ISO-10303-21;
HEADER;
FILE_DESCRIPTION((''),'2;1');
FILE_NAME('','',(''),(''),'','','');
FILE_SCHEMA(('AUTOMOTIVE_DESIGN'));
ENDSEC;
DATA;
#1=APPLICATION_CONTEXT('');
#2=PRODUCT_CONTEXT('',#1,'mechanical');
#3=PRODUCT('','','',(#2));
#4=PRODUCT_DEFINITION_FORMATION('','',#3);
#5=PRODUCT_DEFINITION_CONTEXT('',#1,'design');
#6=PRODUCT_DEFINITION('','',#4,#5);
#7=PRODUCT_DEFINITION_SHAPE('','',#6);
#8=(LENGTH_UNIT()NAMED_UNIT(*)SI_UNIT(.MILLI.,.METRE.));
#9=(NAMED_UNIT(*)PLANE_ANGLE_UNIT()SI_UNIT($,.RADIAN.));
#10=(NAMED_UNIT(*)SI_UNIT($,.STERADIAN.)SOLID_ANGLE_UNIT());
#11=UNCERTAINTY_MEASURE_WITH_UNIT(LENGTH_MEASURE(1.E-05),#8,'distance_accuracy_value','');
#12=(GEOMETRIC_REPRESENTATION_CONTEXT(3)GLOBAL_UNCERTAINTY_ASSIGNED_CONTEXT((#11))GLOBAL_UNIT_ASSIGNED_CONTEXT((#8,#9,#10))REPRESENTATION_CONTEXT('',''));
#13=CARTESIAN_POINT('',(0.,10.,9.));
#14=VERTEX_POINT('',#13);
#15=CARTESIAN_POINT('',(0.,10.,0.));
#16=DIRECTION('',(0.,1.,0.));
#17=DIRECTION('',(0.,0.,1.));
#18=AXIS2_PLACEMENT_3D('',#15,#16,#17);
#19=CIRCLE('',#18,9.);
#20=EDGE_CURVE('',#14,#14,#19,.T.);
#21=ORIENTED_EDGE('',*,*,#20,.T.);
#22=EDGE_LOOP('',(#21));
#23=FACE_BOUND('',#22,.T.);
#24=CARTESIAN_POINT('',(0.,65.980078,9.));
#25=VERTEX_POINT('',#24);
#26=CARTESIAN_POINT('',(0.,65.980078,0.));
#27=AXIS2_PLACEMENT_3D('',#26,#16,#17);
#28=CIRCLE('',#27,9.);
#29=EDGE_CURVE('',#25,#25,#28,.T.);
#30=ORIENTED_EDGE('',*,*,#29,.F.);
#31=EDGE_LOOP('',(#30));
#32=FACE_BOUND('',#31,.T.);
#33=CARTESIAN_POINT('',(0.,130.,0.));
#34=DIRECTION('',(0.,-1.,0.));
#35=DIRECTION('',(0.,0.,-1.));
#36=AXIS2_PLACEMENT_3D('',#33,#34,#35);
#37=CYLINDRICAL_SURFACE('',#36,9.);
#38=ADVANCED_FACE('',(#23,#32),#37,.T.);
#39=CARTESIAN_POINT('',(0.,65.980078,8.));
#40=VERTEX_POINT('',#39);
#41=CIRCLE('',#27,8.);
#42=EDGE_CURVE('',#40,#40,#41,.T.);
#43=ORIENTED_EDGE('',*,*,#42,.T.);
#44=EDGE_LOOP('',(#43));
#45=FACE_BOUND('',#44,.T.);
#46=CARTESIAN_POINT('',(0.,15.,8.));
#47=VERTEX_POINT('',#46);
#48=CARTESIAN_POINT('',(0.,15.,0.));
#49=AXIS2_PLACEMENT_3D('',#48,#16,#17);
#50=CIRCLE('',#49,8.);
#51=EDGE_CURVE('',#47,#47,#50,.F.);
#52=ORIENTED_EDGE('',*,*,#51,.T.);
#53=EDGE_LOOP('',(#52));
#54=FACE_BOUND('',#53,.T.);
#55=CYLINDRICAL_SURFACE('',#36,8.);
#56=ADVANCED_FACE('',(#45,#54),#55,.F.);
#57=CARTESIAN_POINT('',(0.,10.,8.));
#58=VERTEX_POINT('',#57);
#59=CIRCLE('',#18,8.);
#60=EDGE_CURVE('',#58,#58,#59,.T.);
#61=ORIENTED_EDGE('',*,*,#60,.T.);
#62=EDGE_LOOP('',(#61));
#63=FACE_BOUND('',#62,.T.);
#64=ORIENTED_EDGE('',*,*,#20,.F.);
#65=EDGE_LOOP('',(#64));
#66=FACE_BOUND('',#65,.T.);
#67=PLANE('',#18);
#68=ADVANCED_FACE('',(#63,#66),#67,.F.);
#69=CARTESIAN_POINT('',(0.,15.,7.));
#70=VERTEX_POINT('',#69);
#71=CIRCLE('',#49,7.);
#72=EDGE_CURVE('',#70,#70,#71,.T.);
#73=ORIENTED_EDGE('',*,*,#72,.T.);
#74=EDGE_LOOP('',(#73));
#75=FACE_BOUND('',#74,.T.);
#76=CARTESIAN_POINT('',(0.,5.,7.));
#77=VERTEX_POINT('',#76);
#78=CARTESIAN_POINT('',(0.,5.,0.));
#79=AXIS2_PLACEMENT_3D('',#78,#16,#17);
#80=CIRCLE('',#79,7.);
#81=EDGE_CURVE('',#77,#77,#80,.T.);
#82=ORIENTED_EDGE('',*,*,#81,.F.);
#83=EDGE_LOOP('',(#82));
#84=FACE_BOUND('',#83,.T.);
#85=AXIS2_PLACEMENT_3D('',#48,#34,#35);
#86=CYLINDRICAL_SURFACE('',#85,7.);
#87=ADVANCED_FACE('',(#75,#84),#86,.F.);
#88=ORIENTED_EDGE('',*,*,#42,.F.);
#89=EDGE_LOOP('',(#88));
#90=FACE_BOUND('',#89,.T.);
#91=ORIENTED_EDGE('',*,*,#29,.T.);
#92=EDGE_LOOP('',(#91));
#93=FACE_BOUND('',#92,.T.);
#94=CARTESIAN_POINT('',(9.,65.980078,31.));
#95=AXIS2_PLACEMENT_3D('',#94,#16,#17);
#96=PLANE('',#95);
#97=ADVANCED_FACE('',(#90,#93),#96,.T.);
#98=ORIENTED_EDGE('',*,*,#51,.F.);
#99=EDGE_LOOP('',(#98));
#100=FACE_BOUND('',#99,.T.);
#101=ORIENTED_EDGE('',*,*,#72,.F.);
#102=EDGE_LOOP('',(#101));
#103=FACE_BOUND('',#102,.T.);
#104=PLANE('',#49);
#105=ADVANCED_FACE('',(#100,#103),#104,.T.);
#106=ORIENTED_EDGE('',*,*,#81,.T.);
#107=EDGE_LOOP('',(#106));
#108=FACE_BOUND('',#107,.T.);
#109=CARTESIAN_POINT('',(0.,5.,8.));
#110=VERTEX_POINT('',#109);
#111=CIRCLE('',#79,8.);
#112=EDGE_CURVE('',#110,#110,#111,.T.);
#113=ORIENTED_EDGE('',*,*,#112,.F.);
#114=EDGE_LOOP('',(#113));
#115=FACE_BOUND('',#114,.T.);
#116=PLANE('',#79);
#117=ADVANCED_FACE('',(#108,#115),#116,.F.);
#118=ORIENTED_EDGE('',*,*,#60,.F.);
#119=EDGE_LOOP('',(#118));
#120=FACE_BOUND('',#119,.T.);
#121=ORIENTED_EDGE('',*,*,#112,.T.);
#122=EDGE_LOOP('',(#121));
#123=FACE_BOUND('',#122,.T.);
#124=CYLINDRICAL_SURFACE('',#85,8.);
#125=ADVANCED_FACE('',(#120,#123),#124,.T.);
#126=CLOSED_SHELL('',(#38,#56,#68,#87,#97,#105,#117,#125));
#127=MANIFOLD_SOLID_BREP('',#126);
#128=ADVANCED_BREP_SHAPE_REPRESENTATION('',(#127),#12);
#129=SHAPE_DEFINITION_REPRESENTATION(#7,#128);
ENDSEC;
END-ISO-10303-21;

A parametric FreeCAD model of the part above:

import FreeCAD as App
import Part
import Sketcher
Q = App.Units.Quantity

doc = App.newDocument("Part")
params = doc.addObject("Spreadsheet::Sheet", "Params")
for row, (alias, value) in enumerate([
    ("sketch1_diameter", "16 mm"),
    ("sketch1_diameter2", "14 mm"),
    ("pad1_length", "15 mm"),
    ("sketch2_diameter", "18 mm"),
    ("sketch2_diameter2", "16 mm"),
    ("pad2_length", "120 mm"),
    ("sketch3_diameter", "16 mm"),
    ("sketch3_diameter2", "14 mm"),
    ("pocket1_length", "5 mm"),
    ("sketch4_width", "18 mm"),
    ("sketch5_width", "18 mm"),
], start=1):
    params.set(f"A{row}", alias)
    params.set(f"B{row}", "=" + value)
    params.setAlias(f"B{row}", alias)

body = doc.addObject("PartDesign::Body", "Body")

sketch1 = doc.addObject("Sketcher::SketchObject", "Sketch")
body.addObject(sketch1)
sketch1.AttachmentSupport = (doc.XZ_Plane, [""])
sketch1.MapMode = "FlatFace"
sketch1.addGeometry([
    Part.Circle(App.Vector(0, 0, 0), App.Vector(0, 0, 1), 8),
    Part.Circle(App.Vector(0, 0, 0), App.Vector(0, 0, 1), 7),
], False)
sketch1.addConstraint([
    Sketcher.Constraint("Coincident", 0, 3, -1, 1),
    Sketcher.Constraint("Coincident", 1, 3, -1, 1),
    Sketcher.Constraint("Diameter", 0, Q("16 mm")),
    Sketcher.Constraint("Diameter", 1, Q("14 mm")),
])
sketch1.setExpression("Constraints[2]", "Params.sketch1_diameter")
sketch1.setExpression("Constraints[3]", "Params.sketch1_diameter2")
pad1 = doc.addObject("PartDesign::Pad", "Pad")
body.addObject(pad1)
pad1.Profile = sketch1
pad1.setExpression("Length", "Params.pad1_length")
pad1.Reversed = True

sketch2 = doc.addObject("Sketcher::SketchObject", "Sketch001")
body.addObject(sketch2)
sketch2.AttachmentSupport = (doc.XZ_Plane, [""])
sketch2.MapMode = "FlatFace"
sketch2.AttachmentOffset = App.Placement(App.Vector(0, 0, -10), App.Rotation())
sketch2.addGeometry([
    Part.Circle(App.Vector(0, 0, 0), App.Vector(0, 0, 1), 9),
    Part.Circle(App.Vector(0, 0, 0), App.Vector(0, 0, 1), 8),
], False)
sketch2.addConstraint([
    Sketcher.Constraint("Coincident", 0, 3, -1, 1),
    Sketcher.Constraint("Coincident", 1, 3, -1, 1),
    Sketcher.Constraint("Diameter", 0, Q("18 mm")),
    Sketcher.Constraint("Diameter", 1, Q("16 mm")),
])
sketch2.setExpression("Constraints[2]", "Params.sketch2_diameter")
sketch2.setExpression("Constraints[3]", "Params.sketch2_diameter2")
pad2 = doc.addObject("PartDesign::Pad", "Pad001")
body.addObject(pad2)
pad2.Profile = sketch2
pad2.setExpression("Length", "Params.pad2_length")
pad2.Reversed = True

sketch3 = doc.addObject("Sketcher::SketchObject", "Sketch002")
body.addObject(sketch3)
sketch3.AttachmentSupport = (doc.XZ_Plane, [""])
sketch3.MapMode = "FlatFace"
sketch3.addGeometry([
    Part.Circle(App.Vector(0, 0, 0), App.Vector(0, 0, 1), 8),
    Part.Circle(App.Vector(0, 0, 0), App.Vector(0, 0, 1), 7),
], False)
sketch3.addConstraint([
    Sketcher.Constraint("Coincident", 0, 3, -1, 1),
    Sketcher.Constraint("Coincident", 1, 3, -1, 1),
    Sketcher.Constraint("Diameter", 0, Q("16 mm")),
    Sketcher.Constraint("Diameter", 1, Q("14 mm")),
])
sketch3.setExpression("Constraints[2]", "Params.sketch3_diameter")
sketch3.setExpression("Constraints[3]", "Params.sketch3_diameter2")
pocket1 = doc.addObject("PartDesign::Pocket", "Pocket")
body.addObject(pocket1)
pocket1.Profile = sketch3
pocket1.setExpression("Length", "Params.pocket1_length")

sketch4 = doc.addObject("Sketcher::SketchObject", "Sketch003")
body.addObject(sketch4)
sketch4.AttachmentSupport = (doc.XY_Plane, [""])
sketch4.MapMode = "FlatFace"
sketch4.addGeometry([
    Part.LineSegment(App.Vector(-9, 130, 0), App.Vector(-9, 89, 0)),
    Part.LineSegment(App.Vector(-9, 89, 0), App.Vector(9, 89, 0)),
    Part.LineSegment(App.Vector(9, 89, 0), App.Vector(9, 130, 0)),
    Part.LineSegment(App.Vector(9, 130, 0), App.Vector(-9, 130, 0)),
], False)
sketch4.addConstraint([
    Sketcher.Constraint("Coincident", 0, 2, 1, 1),
    Sketcher.Constraint("Coincident", 1, 2, 2, 1),
    Sketcher.Constraint("Coincident", 2, 2, 3, 1),
    Sketcher.Constraint("Coincident", 3, 2, 0, 1),
    Sketcher.Constraint("Vertical", 0),
    Sketcher.Constraint("Horizontal", 1),
    Sketcher.Constraint("Vertical", 2),
    Sketcher.Constraint("Horizontal", 3),
    Sketcher.Constraint("DistanceX", 1, 1, 1, 2, Q("18 mm")),
    Sketcher.Constraint("DistanceX", 0, 2, -1, 1, Q("9 mm")),
    Sketcher.Constraint("DistanceY", -1, 1, 2, 2, Q("130 mm")),
    Sketcher.Constraint("DistanceY", 0, 2, 0, 1, Q("40.940585 mm")),
])
sketch4.setExpression("Constraints[8]", "Params.sketch4_width")
pocket2 = doc.addObject("PartDesign::Pocket", "Pocket001")
body.addObject(pocket2)
pocket2.Profile = sketch4
pocket2.Type = "ThroughAll"
pocket2.Midplane = True

sketch5 = doc.addObject("Sketcher::SketchObject", "Sketch004")
body.addObject(sketch5)
sketch5.AttachmentSupport = (doc.XY_Plane, [""])
sketch5.MapMode = "FlatFace"
sketch5.addGeometry([
    Part.LineSegment(App.Vector(-9, 89, 0), App.Vector(-9, 66, 0)),
    Part.LineSegment(App.Vector(-9, 66, 0), App.Vector(9, 66, 0)),
    Part.LineSegment(App.Vector(9, 66, 0), App.Vector(9, 89, 0)),
    Part.LineSegment(App.Vector(9, 89, 0), App.Vector(-9, 89, 0)),
], False)
sketch5.addConstraint([
    Sketcher.Constraint("Coincident", 0, 2, 1, 1),
    Sketcher.Constraint("Coincident", 1, 2, 2, 1),
    Sketcher.Constraint("Coincident", 2, 2, 3, 1),
    Sketcher.Constraint("Coincident", 3, 2, 0, 1),
    Sketcher.Constraint("Vertical", 0),
    Sketcher.Constraint("Horizontal", 1),
    Sketcher.Constraint("Vertical", 2),
    Sketcher.Constraint("Horizontal", 3),
    Sketcher.Constraint("DistanceX", 1, 1, 1, 2, Q("18 mm")),
    Sketcher.Constraint("DistanceX", 0, 2, -1, 1, Q("9 mm")),
    Sketcher.Constraint("DistanceY", 0, 2, 0, 1, Q("23.079337 mm")),
    Sketcher.Constraint("DistanceY", -1, 1, 0, 2, Q("65.980078 mm")),
])
sketch5.setExpression("Constraints[8]", "Params.sketch5_width")
pocket3 = doc.addObject("PartDesign::Pocket", "Pocket002")
body.addObject(pocket3)
pocket3.Profile = sketch5
pocket3.Type = "ThroughAll"
pocket3.Midplane = True

doc.recompute()
